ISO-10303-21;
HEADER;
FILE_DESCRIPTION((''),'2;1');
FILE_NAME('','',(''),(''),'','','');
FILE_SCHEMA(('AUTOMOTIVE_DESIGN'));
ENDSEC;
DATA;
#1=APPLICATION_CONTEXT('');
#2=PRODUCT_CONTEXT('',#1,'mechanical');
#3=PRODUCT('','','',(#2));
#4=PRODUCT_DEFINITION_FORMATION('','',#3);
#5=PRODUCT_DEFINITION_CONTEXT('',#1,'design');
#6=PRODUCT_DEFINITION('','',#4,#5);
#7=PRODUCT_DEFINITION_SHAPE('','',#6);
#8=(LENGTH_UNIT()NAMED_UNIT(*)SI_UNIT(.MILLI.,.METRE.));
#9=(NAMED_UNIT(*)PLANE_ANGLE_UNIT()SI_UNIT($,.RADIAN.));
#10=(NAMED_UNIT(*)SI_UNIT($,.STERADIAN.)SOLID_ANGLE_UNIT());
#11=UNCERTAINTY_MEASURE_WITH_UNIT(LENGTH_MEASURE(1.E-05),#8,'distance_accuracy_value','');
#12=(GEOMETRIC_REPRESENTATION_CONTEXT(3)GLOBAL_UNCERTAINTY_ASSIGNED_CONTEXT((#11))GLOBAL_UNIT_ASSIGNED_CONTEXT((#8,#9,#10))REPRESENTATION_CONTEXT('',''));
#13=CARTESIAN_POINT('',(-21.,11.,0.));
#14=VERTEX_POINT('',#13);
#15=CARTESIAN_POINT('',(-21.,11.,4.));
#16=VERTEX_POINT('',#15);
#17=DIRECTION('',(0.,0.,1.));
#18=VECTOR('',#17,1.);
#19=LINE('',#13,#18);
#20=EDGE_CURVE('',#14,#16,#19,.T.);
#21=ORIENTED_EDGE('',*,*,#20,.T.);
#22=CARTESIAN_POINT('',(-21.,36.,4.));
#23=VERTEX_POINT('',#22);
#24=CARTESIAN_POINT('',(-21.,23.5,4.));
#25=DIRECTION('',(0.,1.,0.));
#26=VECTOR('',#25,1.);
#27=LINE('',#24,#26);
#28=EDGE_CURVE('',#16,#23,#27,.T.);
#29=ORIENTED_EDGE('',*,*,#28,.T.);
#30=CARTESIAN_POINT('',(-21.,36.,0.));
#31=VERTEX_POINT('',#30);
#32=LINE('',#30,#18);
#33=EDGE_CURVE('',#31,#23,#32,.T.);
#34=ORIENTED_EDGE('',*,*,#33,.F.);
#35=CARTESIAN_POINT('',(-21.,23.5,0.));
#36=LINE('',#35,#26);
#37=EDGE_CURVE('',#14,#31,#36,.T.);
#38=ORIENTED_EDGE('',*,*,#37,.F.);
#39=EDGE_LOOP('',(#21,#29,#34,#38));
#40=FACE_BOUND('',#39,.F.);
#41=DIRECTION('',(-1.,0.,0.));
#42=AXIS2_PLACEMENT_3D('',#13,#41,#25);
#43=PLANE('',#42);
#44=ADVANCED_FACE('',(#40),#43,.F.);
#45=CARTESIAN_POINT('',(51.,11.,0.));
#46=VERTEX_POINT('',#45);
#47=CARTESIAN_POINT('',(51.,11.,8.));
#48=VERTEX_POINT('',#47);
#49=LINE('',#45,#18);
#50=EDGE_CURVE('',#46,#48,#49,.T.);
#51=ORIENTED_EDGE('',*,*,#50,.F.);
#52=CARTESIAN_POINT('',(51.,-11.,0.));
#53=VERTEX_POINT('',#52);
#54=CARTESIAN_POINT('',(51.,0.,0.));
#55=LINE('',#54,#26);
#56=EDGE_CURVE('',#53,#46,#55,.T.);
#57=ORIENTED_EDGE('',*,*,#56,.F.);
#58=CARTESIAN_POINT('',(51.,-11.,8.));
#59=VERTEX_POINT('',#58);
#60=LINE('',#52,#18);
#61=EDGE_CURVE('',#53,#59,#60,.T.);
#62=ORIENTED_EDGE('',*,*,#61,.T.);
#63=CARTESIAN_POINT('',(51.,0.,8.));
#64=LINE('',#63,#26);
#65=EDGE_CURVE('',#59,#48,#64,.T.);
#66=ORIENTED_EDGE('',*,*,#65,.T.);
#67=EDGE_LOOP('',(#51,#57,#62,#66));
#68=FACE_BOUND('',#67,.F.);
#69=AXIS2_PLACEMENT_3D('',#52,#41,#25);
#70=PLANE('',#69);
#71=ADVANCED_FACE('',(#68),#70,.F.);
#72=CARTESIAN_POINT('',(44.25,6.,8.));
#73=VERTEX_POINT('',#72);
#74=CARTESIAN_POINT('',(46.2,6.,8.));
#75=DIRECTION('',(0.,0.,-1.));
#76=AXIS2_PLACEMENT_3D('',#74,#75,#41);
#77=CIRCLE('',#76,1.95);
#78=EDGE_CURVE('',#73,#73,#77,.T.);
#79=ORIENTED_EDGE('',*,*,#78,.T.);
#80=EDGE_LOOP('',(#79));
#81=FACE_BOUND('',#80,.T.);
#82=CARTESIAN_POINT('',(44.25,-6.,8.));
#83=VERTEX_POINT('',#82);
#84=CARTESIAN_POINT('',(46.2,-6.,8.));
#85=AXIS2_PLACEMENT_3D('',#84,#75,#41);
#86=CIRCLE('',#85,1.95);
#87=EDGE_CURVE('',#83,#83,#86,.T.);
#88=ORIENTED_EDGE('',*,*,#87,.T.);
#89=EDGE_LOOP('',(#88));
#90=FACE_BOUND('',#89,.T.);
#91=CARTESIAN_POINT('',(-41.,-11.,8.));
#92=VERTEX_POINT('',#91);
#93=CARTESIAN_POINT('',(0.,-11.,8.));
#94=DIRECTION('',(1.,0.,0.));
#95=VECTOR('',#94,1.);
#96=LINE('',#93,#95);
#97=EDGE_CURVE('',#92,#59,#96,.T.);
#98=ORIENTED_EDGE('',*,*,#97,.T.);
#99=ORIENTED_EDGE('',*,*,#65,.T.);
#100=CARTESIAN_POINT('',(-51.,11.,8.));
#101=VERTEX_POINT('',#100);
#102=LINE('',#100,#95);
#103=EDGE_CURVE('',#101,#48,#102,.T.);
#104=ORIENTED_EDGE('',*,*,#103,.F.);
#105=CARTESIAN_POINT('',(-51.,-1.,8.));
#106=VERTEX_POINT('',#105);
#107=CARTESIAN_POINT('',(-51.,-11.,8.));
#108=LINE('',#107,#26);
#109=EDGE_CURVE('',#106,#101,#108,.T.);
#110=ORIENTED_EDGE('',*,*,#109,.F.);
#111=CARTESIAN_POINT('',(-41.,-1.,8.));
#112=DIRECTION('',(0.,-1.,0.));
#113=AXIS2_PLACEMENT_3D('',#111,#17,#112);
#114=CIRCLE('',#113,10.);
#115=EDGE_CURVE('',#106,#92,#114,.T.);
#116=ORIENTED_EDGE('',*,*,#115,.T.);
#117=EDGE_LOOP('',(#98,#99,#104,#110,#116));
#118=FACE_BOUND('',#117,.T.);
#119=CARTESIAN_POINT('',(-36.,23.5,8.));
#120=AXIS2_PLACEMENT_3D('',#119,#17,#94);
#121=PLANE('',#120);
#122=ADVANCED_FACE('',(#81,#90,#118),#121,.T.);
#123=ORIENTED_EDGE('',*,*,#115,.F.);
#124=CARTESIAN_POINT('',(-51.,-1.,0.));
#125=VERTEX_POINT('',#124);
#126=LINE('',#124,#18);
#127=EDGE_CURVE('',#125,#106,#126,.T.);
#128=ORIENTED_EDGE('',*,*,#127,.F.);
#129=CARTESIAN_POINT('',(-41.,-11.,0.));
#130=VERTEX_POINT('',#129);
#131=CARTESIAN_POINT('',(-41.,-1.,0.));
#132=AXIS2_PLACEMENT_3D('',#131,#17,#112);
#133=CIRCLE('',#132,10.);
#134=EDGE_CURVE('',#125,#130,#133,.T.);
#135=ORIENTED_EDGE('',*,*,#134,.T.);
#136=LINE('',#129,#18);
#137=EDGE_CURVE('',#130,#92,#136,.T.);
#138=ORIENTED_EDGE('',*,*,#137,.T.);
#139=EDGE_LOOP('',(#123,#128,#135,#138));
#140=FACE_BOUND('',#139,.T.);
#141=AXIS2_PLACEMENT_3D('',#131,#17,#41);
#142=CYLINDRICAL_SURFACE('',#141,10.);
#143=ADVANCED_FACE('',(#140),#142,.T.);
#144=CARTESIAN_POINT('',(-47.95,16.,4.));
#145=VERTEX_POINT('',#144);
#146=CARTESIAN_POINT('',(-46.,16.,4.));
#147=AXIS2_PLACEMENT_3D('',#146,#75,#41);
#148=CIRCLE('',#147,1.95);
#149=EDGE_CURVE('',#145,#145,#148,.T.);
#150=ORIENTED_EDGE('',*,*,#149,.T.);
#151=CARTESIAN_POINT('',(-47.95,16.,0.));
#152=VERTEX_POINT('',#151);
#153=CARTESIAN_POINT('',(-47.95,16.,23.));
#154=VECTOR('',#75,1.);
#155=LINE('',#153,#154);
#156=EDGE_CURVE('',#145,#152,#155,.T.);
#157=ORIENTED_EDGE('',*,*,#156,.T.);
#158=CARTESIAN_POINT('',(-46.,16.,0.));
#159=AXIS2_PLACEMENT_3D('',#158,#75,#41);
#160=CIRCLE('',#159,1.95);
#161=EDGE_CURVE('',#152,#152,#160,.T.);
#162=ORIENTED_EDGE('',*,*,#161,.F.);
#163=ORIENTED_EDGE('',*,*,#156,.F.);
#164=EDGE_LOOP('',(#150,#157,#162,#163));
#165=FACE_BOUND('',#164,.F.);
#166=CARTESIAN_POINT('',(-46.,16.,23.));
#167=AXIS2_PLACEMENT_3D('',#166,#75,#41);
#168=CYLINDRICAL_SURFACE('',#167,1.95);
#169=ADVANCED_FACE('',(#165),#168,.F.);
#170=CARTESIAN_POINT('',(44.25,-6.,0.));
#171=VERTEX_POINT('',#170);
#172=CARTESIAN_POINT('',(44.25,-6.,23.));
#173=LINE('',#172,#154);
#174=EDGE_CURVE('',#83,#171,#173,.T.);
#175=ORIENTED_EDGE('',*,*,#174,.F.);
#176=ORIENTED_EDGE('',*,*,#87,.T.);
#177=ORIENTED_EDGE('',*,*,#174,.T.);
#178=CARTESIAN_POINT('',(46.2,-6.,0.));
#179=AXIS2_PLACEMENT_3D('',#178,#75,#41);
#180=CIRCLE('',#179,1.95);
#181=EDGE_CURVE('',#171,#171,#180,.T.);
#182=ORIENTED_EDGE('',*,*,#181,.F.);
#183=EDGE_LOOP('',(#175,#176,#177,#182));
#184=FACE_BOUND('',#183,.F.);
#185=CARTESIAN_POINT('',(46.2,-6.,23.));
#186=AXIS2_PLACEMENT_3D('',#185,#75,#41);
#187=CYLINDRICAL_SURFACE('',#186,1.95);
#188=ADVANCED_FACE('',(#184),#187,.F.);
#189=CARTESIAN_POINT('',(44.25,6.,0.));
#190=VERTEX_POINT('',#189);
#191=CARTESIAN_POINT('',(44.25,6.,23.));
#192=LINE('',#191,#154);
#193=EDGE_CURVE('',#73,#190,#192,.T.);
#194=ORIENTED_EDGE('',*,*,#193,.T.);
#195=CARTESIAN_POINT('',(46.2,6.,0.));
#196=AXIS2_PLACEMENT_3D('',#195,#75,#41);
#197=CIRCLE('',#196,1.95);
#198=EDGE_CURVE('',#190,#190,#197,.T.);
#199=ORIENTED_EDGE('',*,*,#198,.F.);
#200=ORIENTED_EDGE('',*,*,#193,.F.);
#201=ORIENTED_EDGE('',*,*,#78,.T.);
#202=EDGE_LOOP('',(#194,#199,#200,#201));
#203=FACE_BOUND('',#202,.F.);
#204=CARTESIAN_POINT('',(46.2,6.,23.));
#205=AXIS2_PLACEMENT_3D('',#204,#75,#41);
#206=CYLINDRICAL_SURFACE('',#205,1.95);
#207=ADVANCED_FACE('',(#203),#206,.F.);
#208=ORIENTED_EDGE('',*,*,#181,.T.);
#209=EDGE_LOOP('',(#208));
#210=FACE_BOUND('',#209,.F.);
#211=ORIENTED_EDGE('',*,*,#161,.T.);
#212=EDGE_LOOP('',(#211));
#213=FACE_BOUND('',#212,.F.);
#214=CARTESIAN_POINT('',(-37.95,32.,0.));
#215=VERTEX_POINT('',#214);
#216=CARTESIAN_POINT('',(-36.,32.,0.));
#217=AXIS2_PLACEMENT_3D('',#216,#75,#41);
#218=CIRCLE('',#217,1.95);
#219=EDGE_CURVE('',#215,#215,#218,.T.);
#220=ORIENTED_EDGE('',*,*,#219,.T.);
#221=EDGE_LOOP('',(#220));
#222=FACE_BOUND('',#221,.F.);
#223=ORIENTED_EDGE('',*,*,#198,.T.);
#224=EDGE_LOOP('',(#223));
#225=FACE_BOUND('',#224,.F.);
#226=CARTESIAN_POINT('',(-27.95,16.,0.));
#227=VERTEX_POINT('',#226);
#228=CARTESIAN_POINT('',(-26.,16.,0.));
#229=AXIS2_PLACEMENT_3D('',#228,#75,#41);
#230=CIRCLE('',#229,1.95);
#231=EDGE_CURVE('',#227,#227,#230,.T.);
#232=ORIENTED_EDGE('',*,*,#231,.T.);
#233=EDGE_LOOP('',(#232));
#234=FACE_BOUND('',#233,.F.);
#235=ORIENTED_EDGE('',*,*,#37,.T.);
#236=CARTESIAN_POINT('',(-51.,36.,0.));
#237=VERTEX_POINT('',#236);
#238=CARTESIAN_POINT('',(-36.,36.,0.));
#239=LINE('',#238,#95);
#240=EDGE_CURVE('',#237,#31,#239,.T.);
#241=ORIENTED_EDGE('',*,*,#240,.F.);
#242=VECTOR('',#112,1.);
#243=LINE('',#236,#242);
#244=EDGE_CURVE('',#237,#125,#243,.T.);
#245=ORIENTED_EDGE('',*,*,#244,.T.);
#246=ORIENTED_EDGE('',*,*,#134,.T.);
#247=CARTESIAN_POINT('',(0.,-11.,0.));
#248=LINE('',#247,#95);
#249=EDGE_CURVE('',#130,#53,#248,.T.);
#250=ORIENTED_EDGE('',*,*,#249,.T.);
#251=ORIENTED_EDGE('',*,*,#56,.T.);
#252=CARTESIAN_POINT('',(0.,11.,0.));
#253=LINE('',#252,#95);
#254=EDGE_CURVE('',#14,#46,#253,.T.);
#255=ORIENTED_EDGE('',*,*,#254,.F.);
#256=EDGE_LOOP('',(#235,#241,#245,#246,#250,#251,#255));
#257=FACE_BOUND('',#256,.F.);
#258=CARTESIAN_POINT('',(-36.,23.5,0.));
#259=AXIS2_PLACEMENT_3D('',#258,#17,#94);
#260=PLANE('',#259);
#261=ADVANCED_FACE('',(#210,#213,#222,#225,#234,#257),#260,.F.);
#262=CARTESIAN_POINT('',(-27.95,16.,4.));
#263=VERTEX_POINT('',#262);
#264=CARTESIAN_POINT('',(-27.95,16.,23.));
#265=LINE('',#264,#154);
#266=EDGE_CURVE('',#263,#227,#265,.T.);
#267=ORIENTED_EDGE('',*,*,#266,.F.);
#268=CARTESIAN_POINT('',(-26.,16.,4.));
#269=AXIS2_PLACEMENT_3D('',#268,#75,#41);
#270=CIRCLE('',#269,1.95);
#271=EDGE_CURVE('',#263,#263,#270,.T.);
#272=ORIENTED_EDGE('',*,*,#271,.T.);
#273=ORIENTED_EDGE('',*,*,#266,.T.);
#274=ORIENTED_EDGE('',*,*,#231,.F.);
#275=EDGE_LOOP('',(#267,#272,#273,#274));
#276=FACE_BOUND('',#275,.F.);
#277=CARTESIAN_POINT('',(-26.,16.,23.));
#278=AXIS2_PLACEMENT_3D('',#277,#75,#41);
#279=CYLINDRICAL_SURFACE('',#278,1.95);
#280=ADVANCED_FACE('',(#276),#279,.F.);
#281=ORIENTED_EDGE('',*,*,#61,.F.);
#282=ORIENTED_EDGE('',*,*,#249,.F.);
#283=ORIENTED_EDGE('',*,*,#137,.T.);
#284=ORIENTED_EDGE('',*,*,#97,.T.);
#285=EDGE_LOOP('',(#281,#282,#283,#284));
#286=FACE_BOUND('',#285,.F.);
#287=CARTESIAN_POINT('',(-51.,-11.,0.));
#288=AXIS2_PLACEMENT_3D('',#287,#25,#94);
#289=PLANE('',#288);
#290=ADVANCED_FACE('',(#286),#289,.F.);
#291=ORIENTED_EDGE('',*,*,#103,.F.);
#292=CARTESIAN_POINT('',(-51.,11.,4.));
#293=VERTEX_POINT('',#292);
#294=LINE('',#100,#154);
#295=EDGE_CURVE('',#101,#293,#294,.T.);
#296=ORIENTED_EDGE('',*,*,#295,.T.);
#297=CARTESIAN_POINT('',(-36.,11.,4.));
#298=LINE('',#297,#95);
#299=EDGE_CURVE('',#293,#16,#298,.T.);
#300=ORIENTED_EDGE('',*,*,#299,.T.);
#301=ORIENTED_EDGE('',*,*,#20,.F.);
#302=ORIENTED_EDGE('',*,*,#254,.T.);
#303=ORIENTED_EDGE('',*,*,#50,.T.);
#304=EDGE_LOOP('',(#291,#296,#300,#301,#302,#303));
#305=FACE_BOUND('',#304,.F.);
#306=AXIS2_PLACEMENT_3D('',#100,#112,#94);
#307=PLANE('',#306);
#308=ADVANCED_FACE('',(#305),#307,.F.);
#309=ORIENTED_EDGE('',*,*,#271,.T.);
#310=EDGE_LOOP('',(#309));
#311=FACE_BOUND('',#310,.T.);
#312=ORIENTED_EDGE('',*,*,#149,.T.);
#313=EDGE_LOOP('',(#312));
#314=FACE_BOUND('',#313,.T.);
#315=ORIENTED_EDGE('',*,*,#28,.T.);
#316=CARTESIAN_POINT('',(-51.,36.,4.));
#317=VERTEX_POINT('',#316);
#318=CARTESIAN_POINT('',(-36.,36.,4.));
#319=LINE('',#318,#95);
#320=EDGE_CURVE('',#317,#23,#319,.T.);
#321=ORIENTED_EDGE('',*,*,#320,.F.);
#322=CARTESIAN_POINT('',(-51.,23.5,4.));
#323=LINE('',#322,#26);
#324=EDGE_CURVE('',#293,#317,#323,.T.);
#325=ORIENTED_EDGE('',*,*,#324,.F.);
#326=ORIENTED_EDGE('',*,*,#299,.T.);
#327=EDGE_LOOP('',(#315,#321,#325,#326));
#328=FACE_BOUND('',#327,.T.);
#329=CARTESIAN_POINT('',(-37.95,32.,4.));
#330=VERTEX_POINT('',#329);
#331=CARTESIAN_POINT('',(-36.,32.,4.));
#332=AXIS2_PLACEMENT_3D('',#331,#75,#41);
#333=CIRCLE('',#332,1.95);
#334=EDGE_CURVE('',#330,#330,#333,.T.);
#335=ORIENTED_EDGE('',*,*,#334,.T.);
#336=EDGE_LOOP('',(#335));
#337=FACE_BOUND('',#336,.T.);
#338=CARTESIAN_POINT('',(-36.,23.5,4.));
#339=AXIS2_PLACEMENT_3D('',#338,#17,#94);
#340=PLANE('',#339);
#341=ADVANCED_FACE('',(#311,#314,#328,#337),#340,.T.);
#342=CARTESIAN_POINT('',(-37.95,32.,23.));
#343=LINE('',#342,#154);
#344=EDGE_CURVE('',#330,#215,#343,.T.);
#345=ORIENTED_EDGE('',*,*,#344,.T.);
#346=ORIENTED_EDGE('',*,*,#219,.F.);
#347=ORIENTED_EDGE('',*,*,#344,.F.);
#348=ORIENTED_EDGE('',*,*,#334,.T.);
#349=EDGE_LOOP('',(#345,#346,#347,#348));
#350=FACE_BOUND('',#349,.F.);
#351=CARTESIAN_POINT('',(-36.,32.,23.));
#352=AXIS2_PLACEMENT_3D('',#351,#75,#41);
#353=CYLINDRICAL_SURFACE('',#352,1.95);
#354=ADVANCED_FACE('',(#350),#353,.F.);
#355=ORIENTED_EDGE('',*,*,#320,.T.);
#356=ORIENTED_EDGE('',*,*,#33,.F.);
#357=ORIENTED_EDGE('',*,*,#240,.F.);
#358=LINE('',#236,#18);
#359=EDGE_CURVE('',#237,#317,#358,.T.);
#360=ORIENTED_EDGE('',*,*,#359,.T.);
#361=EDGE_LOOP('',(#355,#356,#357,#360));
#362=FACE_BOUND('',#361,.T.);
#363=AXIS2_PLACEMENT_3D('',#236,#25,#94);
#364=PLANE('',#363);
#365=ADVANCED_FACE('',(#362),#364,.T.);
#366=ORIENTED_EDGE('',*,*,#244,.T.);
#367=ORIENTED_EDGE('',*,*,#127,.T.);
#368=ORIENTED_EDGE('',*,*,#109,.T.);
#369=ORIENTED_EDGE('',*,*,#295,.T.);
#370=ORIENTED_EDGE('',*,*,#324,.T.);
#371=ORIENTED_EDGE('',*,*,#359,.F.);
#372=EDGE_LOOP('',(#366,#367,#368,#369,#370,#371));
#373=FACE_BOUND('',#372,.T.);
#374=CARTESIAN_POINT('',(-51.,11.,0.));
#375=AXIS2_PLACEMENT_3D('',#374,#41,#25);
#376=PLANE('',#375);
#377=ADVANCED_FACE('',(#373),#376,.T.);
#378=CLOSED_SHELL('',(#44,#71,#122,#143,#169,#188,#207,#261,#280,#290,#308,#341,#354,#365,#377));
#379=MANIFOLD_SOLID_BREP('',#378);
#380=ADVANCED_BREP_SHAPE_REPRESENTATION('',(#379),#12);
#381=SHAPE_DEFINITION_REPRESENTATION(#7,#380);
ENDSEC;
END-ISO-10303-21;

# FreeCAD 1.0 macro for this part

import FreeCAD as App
import Part
import Sketcher

V = App.Vector


def edges_at(feature, points):
    """Names of the edges that pass closest to the given points."""
    edges = feature.Shape.Edges
    near = lambda p: min(range(len(edges)), key=lambda i: edges[i].distToShape(Part.Vertex(*p))[0])
    return sorted({f"Edge{near(p) + 1}" for p in points})


def add_polygon(sketch, points):
    """Adds a closed chain of lines whose ends are joined by coincident constraints."""
    first, n = sketch.GeometryCount, len(points)
    for a, b in zip(points, points[1:] + points[:1]):
        sketch.addGeometry(Part.LineSegment(App.Vector(*a, 0), App.Vector(*b, 0)), False)
    for i in range(n):
        sketch.addConstraint(Sketcher.Constraint("Coincident", first + i, 2, first + (i + 1) % n, 1))

doc = App.newDocument("Part")
body = doc.addObject("PartDesign::Body", "Body")

sketch1 = body.newObject("Sketcher::SketchObject", "Sketch")
sketch1.AttachmentSupport = (doc.getObject("XY_Plane"), [""])
sketch1.MapMode = "FlatFace"
add_polygon(sketch1, [(-51, 11), (-51, -11), (51, -11), (51, 11)])
sketch1.addConstraint([
    Sketcher.Constraint("Vertical", 0),
    Sketcher.Constraint("Horizontal", 1),
    Sketcher.Constraint("Vertical", 2),
    Sketcher.Constraint("Horizontal", 3),
    Sketcher.Constraint("Symmetric", 0, 2, 2, 2, -1, 1),
    Sketcher.Constraint("DistanceX", 1, 1, 1, 2, 102.0),
    Sketcher.Constraint("DistanceY", 0, 2, 0, 1, 22.0),
])
pad1 = body.newObject("PartDesign::Pad", "Pad")
pad1.Profile = sketch1
pad1.Length = 8

sketch2 = body.newObject("Sketcher::SketchObject", "Sketch001")
sketch2.AttachmentSupport = (doc.getObject("XY_Plane"), [""])
sketch2.MapMode = "FlatFace"
sketch2.AttachmentOffset = App.Placement(V(0, 0, 8), App.Rotation())
sketch2.addGeometry([
    Part.Circle(V(46.2, 6, 0), V(0, 0, 1), 1.9),
    Part.Circle(V(46.2, -6, 0), V(0, 0, 1), 1.9),
], False)
sketch2.addConstraint([
    Sketcher.Constraint("Equal", 0, 1),
    Sketcher.Constraint("Symmetric", 0, 3, 1, 3, -1),
    Sketcher.Constraint("Diameter", 0, 3.9),
    Sketcher.Constraint("DistanceY", -1, 1, 0, 3, 6.0),
    Sketcher.Constraint("DistanceX", -1, 1, 0, 3, 46.2),
])
doc.recompute()
hole = body.newObject("PartDesign::Hole", "Hole")
hole.Profile = sketch2
hole.ThreadType = "None"
hole.Diameter = 3.9
hole.DepthType = "Dimension"
hole.Depth = 15
hole.DrillPoint = "Flat"

sketch3 = body.newObject("Sketcher::SketchObject", "Sketch002")
sketch3.AttachmentSupport = (doc.getObject("XY_Plane"), [""])
sketch3.MapMode = "FlatFace"
add_polygon(sketch3, [(-51, 36), (-51, 11), (-21, 11), (-21, 36)])
sketch3.addConstraint([
    Sketcher.Constraint("Vertical", 0),
    Sketcher.Constraint("Horizontal", 1),
    Sketcher.Constraint("Vertical", 2),
    Sketcher.Constraint("Horizontal", 3),
    Sketcher.Constraint("DistanceX", 1, 1, 1, 2, 30.0),
    Sketcher.Constraint("DistanceY", 0, 2, 0, 1, 25.0),
    Sketcher.Constraint("DistanceX", 0, 2, -1, 1, 51.0),
    Sketcher.Constraint("DistanceY", -1, 1, 0, 2, 11.0),
])
pad2 = body.newObject("PartDesign::Pad", "Pad001")
pad2.Profile = sketch3
pad2.Length = 8
doc.recompute()

fillet = body.newObject("PartDesign::Fillet", "Fillet")
fillet.Base = (pad2, edges_at(pad2, [(-51, -11, 4)]))
fillet.Radius = 10

sketch4 = body.newObject("Sketcher::SketchObject", "Sketch003")
sketch4.AttachmentSupport = (doc.getObject("XY_Plane"), [""])
sketch4.MapMode = "FlatFace"
sketch4.AttachmentOffset = App.Placement(V(0, 0, 8), App.Rotation())
sketch4.addGeometry([
    Part.Circle(V(-46, 16, 0), V(0, 0, 1), 1.9),
    Part.Circle(V(-26, 16, 0), V(0, 0, 1), 1.9),
    Part.Circle(V(-36, 32, 0), V(0, 0, 1), 1.9),
], False)
sketch4.addConstraint([
    Sketcher.Constraint("Equal", 0, 1),
    Sketcher.Constraint("Equal", 1, 2),
    Sketcher.Constraint("Horizontal", 0, 3, 1, 3),
    Sketcher.Constraint("Diameter", 0, 3.9),
    Sketcher.Constraint("DistanceX", 0, 3, -1, 1, 46.0),
    Sketcher.Constraint("DistanceY", -1, 1, 0, 3, 16.0),
    Sketcher.Constraint("DistanceX", 1, 3, -1, 1, 26.0),
    Sketcher.Constraint("DistanceX", 2, 3, -1, 1, 36.0),
    Sketcher.Constraint("DistanceY", -1, 1, 2, 3, 32.0),
])
doc.recompute()
hole2 = body.newObject("PartDesign::Hole", "Hole001")
hole2.Profile = sketch4
hole2.ThreadType = "None"
hole2.Diameter = 3.9
hole2.DepthType = "Dimension"
hole2.Depth = 15
hole2.DrillPoint = "Flat"

sketch5 = body.newObject("Sketcher::SketchObject", "Sketch004")
sketch5.AttachmentSupport = (doc.getObject("XY_Plane"), [""])
sketch5.MapMode = "FlatFace"
sketch5.AttachmentOffset = App.Placement(V(0, 0, 8), App.Rotation())
add_polygon(sketch5, [(-51, 36), (-51, 11), (-21, 11), (-21, 36)])
sketch5.addConstraint([
    Sketcher.Constraint("Vertical", 0),
    Sketcher.Constraint("Horizontal", 1),
    Sketcher.Constraint("Vertical", 2),
    Sketcher.Constraint("Horizontal", 3),
    Sketcher.Constraint("DistanceX", 1, 1, 1, 2, 30.0),
    Sketcher.Constraint("DistanceY", 0, 2, 0, 1, 25.0),
    Sketcher.Constraint("DistanceX", 0, 2, -1, 1, 51.0),
    Sketcher.Constraint("DistanceY", -1, 1, 0, 2, 11.0),
])
pocket1 = body.newObject("PartDesign::Pocket", "Pocket")
pocket1.Profile = sketch5
pocket1.Length = 4

doc.recompute()
